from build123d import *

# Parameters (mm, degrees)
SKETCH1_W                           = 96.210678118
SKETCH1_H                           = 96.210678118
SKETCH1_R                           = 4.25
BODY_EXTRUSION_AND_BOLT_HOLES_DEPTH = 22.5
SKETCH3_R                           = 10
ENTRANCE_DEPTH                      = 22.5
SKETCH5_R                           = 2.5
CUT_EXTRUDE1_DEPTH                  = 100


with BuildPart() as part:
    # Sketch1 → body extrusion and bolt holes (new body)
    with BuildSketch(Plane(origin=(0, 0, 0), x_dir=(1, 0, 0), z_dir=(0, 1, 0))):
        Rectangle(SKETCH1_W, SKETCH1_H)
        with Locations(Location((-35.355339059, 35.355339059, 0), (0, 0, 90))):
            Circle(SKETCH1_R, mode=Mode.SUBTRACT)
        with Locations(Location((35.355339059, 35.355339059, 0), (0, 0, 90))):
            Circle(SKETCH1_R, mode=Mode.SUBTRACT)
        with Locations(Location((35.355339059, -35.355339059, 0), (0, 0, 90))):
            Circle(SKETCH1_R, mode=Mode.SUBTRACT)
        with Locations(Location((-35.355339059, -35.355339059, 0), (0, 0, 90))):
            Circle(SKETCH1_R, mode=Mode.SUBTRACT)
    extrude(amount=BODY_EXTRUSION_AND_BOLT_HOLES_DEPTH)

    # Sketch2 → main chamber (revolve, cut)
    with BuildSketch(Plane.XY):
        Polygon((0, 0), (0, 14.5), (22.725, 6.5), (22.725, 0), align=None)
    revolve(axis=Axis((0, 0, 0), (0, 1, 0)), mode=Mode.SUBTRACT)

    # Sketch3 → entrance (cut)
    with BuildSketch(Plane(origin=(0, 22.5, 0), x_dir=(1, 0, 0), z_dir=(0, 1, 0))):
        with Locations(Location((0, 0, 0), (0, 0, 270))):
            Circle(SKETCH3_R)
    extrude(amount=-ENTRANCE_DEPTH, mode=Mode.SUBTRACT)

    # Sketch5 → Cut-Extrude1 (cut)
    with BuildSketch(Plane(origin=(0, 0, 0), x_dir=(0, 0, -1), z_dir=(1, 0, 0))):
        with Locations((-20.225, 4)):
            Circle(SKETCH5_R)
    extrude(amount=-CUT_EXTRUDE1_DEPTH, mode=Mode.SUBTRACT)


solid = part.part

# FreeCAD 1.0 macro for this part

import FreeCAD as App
import Part
import Sketcher

V = App.Vector

doc = App.newDocument("Part")
body = doc.addObject("PartDesign::Body", "Body")

sketch1 = body.newObject("Sketcher::SketchObject", "Sketch")
sketch1.AttachmentSupport = (doc.getObject("XZ_Plane"), [""])
sketch1.MapMode = "FlatFace"
sketch1.addGeometry(Part.LineSegment(V(-48.1, -48.1, 0), V(-48.1, 48.1, 0)), False)
sketch1.addGeometry(Part.LineSegment(V(-48.1, 48.1, 0), V(48.1, 48.1, 0)), False)
sketch1.addGeometry(Part.LineSegment(V(48.1, 48.1, 0), V(48.1, -48.1, 0)), False)
sketch1.addGeometry(Part.LineSegment(V(48.1, -48.1, 0), V(-48.1, -48.1, 0)), False)
sketch1.addGeometry(Part.Circle(V(-35.4, 35.4, 0), V(0, 0, 1), 4.2), False)
sketch1.addGeometry(Part.Circle(V(35.4, 35.4, 0), V(0, 0, 1), 4.2), False)
sketch1.addGeometry(Part.Circle(V(-35.4, -35.4, 0), V(0, 0, 1), 4.2), False)
sketch1.addGeometry(Part.Circle(V(35.4, -35.4, 0), V(0, 0, 1), 4.2), False)
sketch1.addConstraint(Sketcher.Constraint("Coincident", 0, 2, 1, 1))
sketch1.addConstraint(Sketcher.Constraint("Coincident", 1, 2, 2, 1))
sketch1.addConstraint(Sketcher.Constraint("Coincident", 2, 2, 3, 1))
sketch1.addConstraint(Sketcher.Constraint("Coincident", 3, 2, 0, 1))
sketch1.addConstraint(Sketcher.Constraint("Vertical", 0))
sketch1.addConstraint(Sketcher.Constraint("Horizontal", 1))
sketch1.addConstraint(Sketcher.Constraint("Vertical", 2))
sketch1.addConstraint(Sketcher.Constraint("Horizontal", 3))
sketch1.addConstraint(Sketcher.Constraint("Equal", 4, 5))
sketch1.addConstraint(Sketcher.Constraint("Equal", 5, 6))
sketch1.addConstraint(Sketcher.Constraint("Equal", 6, 7))
sketch1.addConstraint(Sketcher.Constraint("Symmetric", 5, 3, 6, 3, -1, 1))
sketch1.addConstraint(Sketcher.Constraint("Symmetric", 4, 3, 7, 3, -1, 1))
sketch1.addConstraint(Sketcher.Constraint("Symmetric", 0, 2, 2, 2, -1, 1))
sketch1.addConstraint(Sketcher.Constraint("Symmetric", 4, 3, 5, 3, -2))
sketch1.addConstraint(Sketcher.Constraint("Equal", 3, 0))
sketch1.addConstraint(Sketcher.Constraint("Diameter", 4, 8.5))
sketch1.addConstraint(Sketcher.Constraint("DistanceX", 0, 2, 4, 3, 12.75))
sketch1.addConstraint(Sketcher.Constraint("DistanceY", 4, 3, 0, 2, 12.75))
sketch1.addConstraint(Sketcher.Constraint("DistanceX", 1, 1, 1, 2, 96.210678))
pad1 = body.newObject("PartDesign::Pad", "Pad")
pad1.Profile = sketch1
pad1.Length = 22.5
pad1.Reversed = True

sketch2 = body.newObject("Sketcher::SketchObject", "Sketch001")
sketch2.AttachmentSupport = (doc.getObject("XY_Plane"), [""])
sketch2.MapMode = "FlatFace"
sketch2.addGeometry(Part.LineSegment(V(0, 14, 0), V(0, 0, 0)), False)
sketch2.addGeometry(Part.LineSegment(V(0, 0, 0), V(23, 0, 0)), False)
sketch2.addGeometry(Part.LineSegment(V(23, 0, 0), V(23, 6, 0)), False)
sketch2.addGeometry(Part.LineSegment(V(23, 6, 0), V(0, 14, 0)), False)
sketch2.addConstraint(Sketcher.Constraint("Coincident", 0, 2, 1, 1))
sketch2.addConstraint(Sketcher.Constraint("Coincident", 1, 2, 2, 1))
sketch2.addConstraint(Sketcher.Constraint("Coincident", 2, 2, 3, 1))
sketch2.addConstraint(Sketcher.Constraint("Coincident", 3, 2, 0, 1))
sketch2.addConstraint(Sketcher.Constraint("Vertical", 0))
sketch2.addConstraint(Sketcher.Constraint("Horizontal", 1))
sketch2.addConstraint(Sketcher.Constraint("Vertical", 2))
sketch2.addConstraint(Sketcher.Constraint("Coincident", 0, 2, -1, 1))
sketch2.addConstraint(Sketcher.Constraint("DistanceY", 0, 2, 0, 1, 14.5))
sketch2.addConstraint(Sketcher.Constraint("DistanceY", 2, 1, 2, 2, 6.5))
sketch2.addConstraint(Sketcher.Constraint("DistanceX", 1, 1, 1, 2, 22.725))
groove = body.newObject("PartDesign::Groove", "Groove")
groove.Profile = sketch2
groove.ReferenceAxis = (sketch2, ["V_Axis"])
groove.Angle = 360

sketch3 = body.newObject("Sketcher::SketchObject", "Sketch002")
sketch3.AttachmentSupport = (doc.getObject("XZ_Plane"), [""])
sketch3.MapMode = "FlatFace"
sketch3.AttachmentOffset = App.Placement(V(0, 0, -22.5), App.Rotation())
sketch3.addGeometry(Part.Circle(V(0, 0, 0), V(0, 0, 1), 10), False)
sketch3.addConstraint(Sketcher.Constraint("Coincident", 0, 3, -1, 1))
sketch3.addConstraint(Sketcher.Constraint("Diameter", 0, 20.0))
pocket1 = body.newObject("PartDesign::Pocket", "Pocket")
pocket1.Profile = sketch3
pocket1.Length = 22.5
pocket1.Reversed = True

sketch4 = body.newObject("Sketcher::SketchObject", "Sketch003")
sketch4.AttachmentSupport = (doc.getObject("YZ_Plane"), [""])
sketch4.MapMode = "FlatFace"
sketch4.addGeometry(Part.Circle(V(4, 20.2, 0), V(0, 0, 1), 2.5), False)
sketch4.addConstraint(Sketcher.Constraint("Diameter", 0, 5.0))
sketch4.addConstraint(Sketcher.Constraint("DistanceX", -1, 1, 0, 3, 4.0))
sketch4.addConstraint(Sketcher.Constraint("DistanceY", -1, 1, 0, 3, 20.225))
pocket2 = body.newObject("PartDesign::Pocket", "Pocket001")
pocket2.Profile = sketch4
pocket2.Length = 100

doc.recompute()
